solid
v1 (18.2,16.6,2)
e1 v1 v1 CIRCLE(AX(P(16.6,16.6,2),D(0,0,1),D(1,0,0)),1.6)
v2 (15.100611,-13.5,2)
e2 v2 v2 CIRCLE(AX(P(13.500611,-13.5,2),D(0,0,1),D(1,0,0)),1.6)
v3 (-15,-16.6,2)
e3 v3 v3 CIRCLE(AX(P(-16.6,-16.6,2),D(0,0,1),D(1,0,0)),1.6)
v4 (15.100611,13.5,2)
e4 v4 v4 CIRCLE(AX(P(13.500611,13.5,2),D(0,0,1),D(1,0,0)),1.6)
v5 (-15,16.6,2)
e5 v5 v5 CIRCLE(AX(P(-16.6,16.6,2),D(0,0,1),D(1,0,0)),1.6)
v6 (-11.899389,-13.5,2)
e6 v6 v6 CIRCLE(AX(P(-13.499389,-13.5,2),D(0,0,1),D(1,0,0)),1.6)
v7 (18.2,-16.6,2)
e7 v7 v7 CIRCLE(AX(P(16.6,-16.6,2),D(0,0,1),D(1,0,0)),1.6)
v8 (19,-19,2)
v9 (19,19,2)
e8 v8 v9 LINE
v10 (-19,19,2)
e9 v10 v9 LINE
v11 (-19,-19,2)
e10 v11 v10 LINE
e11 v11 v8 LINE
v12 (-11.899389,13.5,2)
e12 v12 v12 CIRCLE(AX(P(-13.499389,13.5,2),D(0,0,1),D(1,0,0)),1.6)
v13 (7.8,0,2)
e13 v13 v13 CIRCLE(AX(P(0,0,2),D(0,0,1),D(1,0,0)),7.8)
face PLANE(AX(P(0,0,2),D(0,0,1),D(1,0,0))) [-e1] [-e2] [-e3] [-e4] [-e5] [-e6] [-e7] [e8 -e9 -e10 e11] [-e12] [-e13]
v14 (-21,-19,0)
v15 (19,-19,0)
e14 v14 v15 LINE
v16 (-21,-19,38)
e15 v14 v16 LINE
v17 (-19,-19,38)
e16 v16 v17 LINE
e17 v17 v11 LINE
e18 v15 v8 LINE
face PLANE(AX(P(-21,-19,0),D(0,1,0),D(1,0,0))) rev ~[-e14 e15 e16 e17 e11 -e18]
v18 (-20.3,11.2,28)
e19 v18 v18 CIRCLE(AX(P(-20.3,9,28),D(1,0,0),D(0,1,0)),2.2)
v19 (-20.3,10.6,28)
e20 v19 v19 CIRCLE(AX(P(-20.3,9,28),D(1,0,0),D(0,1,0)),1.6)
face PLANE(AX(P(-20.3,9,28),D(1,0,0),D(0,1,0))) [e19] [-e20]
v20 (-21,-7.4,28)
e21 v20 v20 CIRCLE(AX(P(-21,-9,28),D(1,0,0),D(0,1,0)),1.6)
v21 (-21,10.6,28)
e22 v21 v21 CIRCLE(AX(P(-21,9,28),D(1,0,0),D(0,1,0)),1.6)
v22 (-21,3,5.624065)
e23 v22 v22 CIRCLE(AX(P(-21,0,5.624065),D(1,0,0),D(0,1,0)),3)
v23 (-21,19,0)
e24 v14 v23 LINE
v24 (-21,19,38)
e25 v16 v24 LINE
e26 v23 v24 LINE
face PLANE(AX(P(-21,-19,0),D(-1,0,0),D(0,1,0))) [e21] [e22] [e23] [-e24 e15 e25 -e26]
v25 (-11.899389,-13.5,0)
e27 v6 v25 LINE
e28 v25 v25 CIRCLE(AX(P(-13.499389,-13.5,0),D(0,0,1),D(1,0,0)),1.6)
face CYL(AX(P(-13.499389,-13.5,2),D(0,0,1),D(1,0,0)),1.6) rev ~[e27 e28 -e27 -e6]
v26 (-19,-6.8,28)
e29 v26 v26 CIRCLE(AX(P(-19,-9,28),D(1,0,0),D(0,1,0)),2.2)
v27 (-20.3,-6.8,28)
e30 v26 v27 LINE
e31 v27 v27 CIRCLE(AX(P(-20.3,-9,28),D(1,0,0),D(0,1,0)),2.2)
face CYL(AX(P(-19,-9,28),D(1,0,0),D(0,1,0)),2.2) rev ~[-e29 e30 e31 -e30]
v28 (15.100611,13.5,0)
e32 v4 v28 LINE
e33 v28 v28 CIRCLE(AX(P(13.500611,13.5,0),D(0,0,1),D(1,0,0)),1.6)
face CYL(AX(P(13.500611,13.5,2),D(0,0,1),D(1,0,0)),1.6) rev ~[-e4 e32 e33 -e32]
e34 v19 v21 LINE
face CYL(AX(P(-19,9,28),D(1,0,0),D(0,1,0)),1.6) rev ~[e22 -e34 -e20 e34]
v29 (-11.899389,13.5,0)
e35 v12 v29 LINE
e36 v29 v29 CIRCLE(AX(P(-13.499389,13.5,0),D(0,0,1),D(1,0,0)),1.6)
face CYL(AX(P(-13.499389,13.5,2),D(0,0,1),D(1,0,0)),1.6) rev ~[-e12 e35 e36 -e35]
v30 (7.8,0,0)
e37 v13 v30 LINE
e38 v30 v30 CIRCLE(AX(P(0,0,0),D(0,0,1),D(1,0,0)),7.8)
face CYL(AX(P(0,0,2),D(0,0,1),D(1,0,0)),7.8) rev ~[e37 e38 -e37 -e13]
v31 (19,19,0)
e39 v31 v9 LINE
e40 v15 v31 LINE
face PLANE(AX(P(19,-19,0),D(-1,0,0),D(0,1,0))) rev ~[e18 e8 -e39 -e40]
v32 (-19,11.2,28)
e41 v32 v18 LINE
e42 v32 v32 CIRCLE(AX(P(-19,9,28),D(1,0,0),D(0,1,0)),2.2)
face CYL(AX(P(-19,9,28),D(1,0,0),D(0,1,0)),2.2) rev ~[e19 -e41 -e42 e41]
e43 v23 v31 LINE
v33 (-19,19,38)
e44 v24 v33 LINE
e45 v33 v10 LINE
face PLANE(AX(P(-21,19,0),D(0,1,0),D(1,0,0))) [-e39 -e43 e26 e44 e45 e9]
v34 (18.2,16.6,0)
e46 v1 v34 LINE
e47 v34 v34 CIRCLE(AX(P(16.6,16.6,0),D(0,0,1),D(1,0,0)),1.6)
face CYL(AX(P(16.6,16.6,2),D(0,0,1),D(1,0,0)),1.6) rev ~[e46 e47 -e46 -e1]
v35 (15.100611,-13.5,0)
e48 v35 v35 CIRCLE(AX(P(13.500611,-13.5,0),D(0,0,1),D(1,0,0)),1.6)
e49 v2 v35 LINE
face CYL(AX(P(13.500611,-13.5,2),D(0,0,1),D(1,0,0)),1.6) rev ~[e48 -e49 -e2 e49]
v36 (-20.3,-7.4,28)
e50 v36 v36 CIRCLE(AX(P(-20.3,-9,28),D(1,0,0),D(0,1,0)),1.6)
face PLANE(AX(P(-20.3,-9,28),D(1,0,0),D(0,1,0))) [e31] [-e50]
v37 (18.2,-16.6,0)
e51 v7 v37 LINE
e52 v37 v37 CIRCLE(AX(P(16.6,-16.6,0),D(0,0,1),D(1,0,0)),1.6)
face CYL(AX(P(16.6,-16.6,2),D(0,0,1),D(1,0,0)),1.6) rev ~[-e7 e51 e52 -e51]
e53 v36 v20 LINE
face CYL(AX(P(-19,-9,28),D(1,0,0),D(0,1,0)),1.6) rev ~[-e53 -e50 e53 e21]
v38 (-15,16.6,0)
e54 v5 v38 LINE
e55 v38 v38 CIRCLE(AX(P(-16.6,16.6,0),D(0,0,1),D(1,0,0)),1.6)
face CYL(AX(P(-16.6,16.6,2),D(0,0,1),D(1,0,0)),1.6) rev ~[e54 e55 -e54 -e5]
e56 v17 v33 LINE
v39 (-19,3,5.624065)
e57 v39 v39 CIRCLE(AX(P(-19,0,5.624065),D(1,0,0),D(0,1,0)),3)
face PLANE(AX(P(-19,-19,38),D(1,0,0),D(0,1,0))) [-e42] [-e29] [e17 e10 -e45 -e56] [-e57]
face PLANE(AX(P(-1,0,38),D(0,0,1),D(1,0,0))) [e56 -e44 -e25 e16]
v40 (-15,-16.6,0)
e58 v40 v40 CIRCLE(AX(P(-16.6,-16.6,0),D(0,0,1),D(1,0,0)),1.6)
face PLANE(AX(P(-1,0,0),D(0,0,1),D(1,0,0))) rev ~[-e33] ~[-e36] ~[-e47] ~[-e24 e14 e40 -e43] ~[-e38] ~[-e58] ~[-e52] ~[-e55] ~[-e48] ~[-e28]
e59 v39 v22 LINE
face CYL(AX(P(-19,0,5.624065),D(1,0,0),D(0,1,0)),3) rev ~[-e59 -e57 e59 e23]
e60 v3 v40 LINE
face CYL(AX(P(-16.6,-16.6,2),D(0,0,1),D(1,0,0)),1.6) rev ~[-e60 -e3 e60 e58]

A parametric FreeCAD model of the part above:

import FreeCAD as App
import Part
import Sketcher
from FreeCAD import Vector

doc = App.newDocument("Part")
body = doc.addObject("PartDesign::Body", "Body")

sketch1 = body.newObject("Sketcher::SketchObject", "Sketch")
sketch1.AttachmentSupport = (doc.getObject("XY_Plane"), [""])
sketch1.MapMode = "FlatFace"
sketch1.addGeometry([
    Part.LineSegment(Vector(-21, 19, 0), Vector(-21, -19, 0)),
    Part.LineSegment(Vector(-21, -19, 0), Vector(19, -19, 0)),
    Part.LineSegment(Vector(19, -19, 0), Vector(19, 19, 0)),
    Part.LineSegment(Vector(19, 19, 0), Vector(-21, 19, 0)),
], False)
sketch1.addConstraint([
    Sketcher.Constraint("Coincident", 0, 2, 1, 1),
    Sketcher.Constraint("Coincident", 1, 2, 2, 1),
    Sketcher.Constraint("Coincident", 2, 2, 3, 1),
    Sketcher.Constraint("Coincident", 3, 2, 0, 1),
    Sketcher.Constraint("Vertical", 0),
    Sketcher.Constraint("Horizontal", 1),
    Sketcher.Constraint("Vertical", 2),
    Sketcher.Constraint("Horizontal", 3),
    Sketcher.Constraint("DistanceX", 1, 1, 1, 2, 40.0),
    Sketcher.Constraint("DistanceY", 0, 2, 0, 1, 38.0),
    Sketcher.Constraint("DistanceX", 0, 2, -1, 1, 21.0),
    Sketcher.Constraint("DistanceY", 0, 2, -1, 1, 19.0),
])
pad1 = body.newObject("PartDesign::Pad", "Pad")
pad1.Profile = sketch1
pad1.Length = 38

sketch2 = body.newObject("Sketcher::SketchObject", "Sketch001")
sketch2.AttachmentSupport = (doc.getObject("XY_Plane"), [""])
sketch2.MapMode = "FlatFace"
sketch2.AttachmentOffset = App.Placement(Vector(0, 0, 38), App.Rotation())
sketch2.addGeometry([
    Part.LineSegment(Vector(-19, 19, 0), Vector(-19, -19, 0)),
    Part.LineSegment(Vector(-19, -19, 0), Vector(19, -19, 0)),
    Part.LineSegment(Vector(19, -19, 0), Vector(19, 19, 0)),
    Part.LineSegment(Vector(19, 19, 0), Vector(-19, 19, 0)),
], False)
sketch2.addConstraint([
    Sketcher.Constraint("Coincident", 0, 2, 1, 1),
    Sketcher.Constraint("Coincident", 1, 2, 2, 1),
    Sketcher.Constraint("Coincident", 2, 2, 3, 1),
    Sketcher.Constraint("Coincident", 3, 2, 0, 1),
    Sketcher.Constraint("Vertical", 0),
    Sketcher.Constraint("Horizontal", 1),
    Sketcher.Constraint("Vertical", 2),
    Sketcher.Constraint("Horizontal", 3),
    Sketcher.Constraint("Symmetric", 0, 2, 2, 2, -1, 1),
    Sketcher.Constraint("Equal", 3, 0),
    Sketcher.Constraint("DistanceX", 1, 1, 1, 2, 38.0),
])
pocket1 = body.newObject("PartDesign::Pocket", "Pocket")
pocket1.Profile = sketch2
pocket1.Length = 36

sketch3 = body.newObject("Sketcher::SketchObject", "Sketch002")
sketch3.AttachmentSupport = (doc.getObject("XY_Plane"), [""])
sketch3.MapMode = "FlatFace"
sketch3.AttachmentOffset = App.Placement(Vector(0, 0, 2), App.Rotation())
sketch3.addGeometry([
    Part.Circle(Vector(13.5, 13.5, 0), Vector(0, 0, 1), 1.6),
    Part.Circle(Vector(-13.5, -13.5, 0), Vector(0, 0, 1), 1.6),
    Part.Circle(Vector(13.5, -13.5, 0), Vector(0, 0, 1), 1.6),
    Part.Circle(Vector(-13.5, 13.5, 0), Vector(0, 0, 1), 1.6),
    Part.Circle(Vector(-16.6, 16.6, 0), Vector(0, 0, 1), 1.6),
    Part.Circle(Vector(16.6, 16.6, 0), Vector(0, 0, 1), 1.6),
    Part.Circle(Vector(16.6, -16.6, 0), Vector(0, 0, 1), 1.6),
    Part.Circle(Vector(-16.6, -16.6, 0), Vector(0, 0, 1), 1.6),
], False)
sketch3.addConstraint([
    Sketcher.Constraint("Equal", 0, 1),
    Sketcher.Constraint("Equal", 1, 2),
    Sketcher.Constraint("Equal", 2, 3),
    Sketcher.Constraint("Equal", 3, 4),
    Sketcher.Constraint("Equal", 4, 5),
    Sketcher.Constraint("Equal", 5, 6),
    Sketcher.Constraint("Equal", 6, 7),
    Sketcher.Constraint("Symmetric", 4, 3, 6, 3, -1, 1),
    Sketcher.Constraint("Symmetric", 5, 3, 7, 3, -1, 1),
    Sketcher.Constraint("Symmetric", 4, 3, 5, 3, -2),
    Sketcher.Constraint("Symmetric", 0, 3, 2, 3, -1),
    Sketcher.Constraint("Symmetric", 1, 3, 3, 3, -1),
    Sketcher.Constraint("Horizontal", 1, 3, 2, 3),
    Sketcher.Constraint("Diameter", 0, 3.2),
    Sketcher.Constraint("DistanceX", 1, 3, 0, 3, 27.0),
    Sketcher.Constraint("DistanceY", 1, 3, 0, 3, 27.0),
    Sketcher.Constraint("DistanceX", 4, 3, -1, 1, 16.6),
    Sketcher.Constraint("DistanceY", -1, 1, 4, 3, 16.6),
    Sketcher.Constraint("DistanceX", -1, 1, 0, 3, 13.500611),
])
pocket2 = body.newObject("PartDesign::Pocket", "Pocket001")
pocket2.Profile = sketch3
pocket2.Length = 2

sketch4 = body.newObject("Sketcher::SketchObject", "Sketch003")
sketch4.AttachmentSupport = (doc.getObject("YZ_Plane"), [""])
sketch4.MapMode = "FlatFace"
sketch4.AttachmentOffset = App.Placement(Vector(0, 0, -19), App.Rotation())
sketch4.addGeometry(Part.Circle(Vector(0, 5.6, 0), Vector(0, 0, 1), 3), False)
sketch4.addConstraint([
    Sketcher.Constraint("PointOnObject", 0, 3, -2),
    Sketcher.Constraint("Diameter", 0, 6.0),
    Sketcher.Constraint("DistanceY", -1, 1, 0, 3, 5.624065),
])
pocket3 = body.newObject("PartDesign::Pocket", "Pocket002")
pocket3.Profile = sketch4
pocket3.Length = 3

sketch5 = body.newObject("Sketcher::SketchObject", "Sketch004")
sketch5.AttachmentSupport = (doc.getObject("YZ_Plane"), [""])
sketch5.MapMode = "FlatFace"
sketch5.AttachmentOffset = App.Placement(Vector(0, 0, -19), App.Rotation())
sketch5.addGeometry([
    Part.Circle(Vector(-9, 28, 0), Vector(0, 0, 1), 1.6),
    Part.Circle(Vector(9, 28, 0), Vector(0, 0, 1), 1.6),
], False)
sketch5.addConstraint([
    Sketcher.Constraint("Equal", 0, 1),
    Sketcher.Constraint("Symmetric", 0, 3, 1, 3, -2),
    Sketcher.Constraint("Diameter", 0, 3.2),
    Sketcher.Constraint("DistanceX", 0, 3, -1, 1, 9.0),
    Sketcher.Constraint("DistanceY", -1, 1, 0, 3, 28.0),
])
pocket4 = body.newObject("PartDesign::Pocket", "Pocket003")
pocket4.Profile = sketch5
pocket4.Length = 3

sketch6 = body.newObject("Sketcher::SketchObject", "Sketch005")
sketch6.AttachmentSupport = (doc.getObject("YZ_Plane"), [""])
sketch6.MapMode = "FlatFace"
sketch6.AttachmentOffset = App.Placement(Vector(0, 0, -19), App.Rotation())
sketch6.addGeometry([
    Part.Circle(Vector(-9, 28, 0), Vector(0, 0, 1), 2.2),
    Part.Circle(Vector(9, 28, 0), Vector(0, 0, 1), 2.2),
], False)
sketch6.addConstraint([
    Sketcher.Constraint("Equal", 0, 1),
    Sketcher.Constraint("Symmetric", 0, 3, 1, 3, -2),
    Sketcher.Constraint("Diameter", 0, 4.4),
    Sketcher.Constraint("DistanceX", 0, 3, -1, 1, 9.0),
    Sketcher.Constraint("DistanceY", -1, 1, 0, 3, 28.0),
])
pocket5 = body.newObject("PartDesign::Pocket", "Pocket004")
pocket5.Profile = sketch6
pocket5.Length = 1.3

sketch7 = body.newObject("Sketcher::SketchObject", "Sketch006")
sketch7.AttachmentSupport = (doc.getObject("XY_Plane"), [""])
sketch7.MapMode = "FlatFace"
sketch7.AttachmentOffset = App.Placement(Vector(0, 0, 2), App.Rotation())
sketch7.addGeometry(Part.Circle(Vector(0, 0, 0), Vector(0, 0, 1), 8), False)
sketch7.addConstraint([
    Sketcher.Constraint("Coincident", 0, 3, -1, 1),
    Sketcher.Constraint("Diameter", 0, 15.6),
])
pocket6 = body.newObject("PartDesign::Pocket", "Pocket005")
pocket6.Profile = sketch7
pocket6.Length = 2

doc.recompute()
